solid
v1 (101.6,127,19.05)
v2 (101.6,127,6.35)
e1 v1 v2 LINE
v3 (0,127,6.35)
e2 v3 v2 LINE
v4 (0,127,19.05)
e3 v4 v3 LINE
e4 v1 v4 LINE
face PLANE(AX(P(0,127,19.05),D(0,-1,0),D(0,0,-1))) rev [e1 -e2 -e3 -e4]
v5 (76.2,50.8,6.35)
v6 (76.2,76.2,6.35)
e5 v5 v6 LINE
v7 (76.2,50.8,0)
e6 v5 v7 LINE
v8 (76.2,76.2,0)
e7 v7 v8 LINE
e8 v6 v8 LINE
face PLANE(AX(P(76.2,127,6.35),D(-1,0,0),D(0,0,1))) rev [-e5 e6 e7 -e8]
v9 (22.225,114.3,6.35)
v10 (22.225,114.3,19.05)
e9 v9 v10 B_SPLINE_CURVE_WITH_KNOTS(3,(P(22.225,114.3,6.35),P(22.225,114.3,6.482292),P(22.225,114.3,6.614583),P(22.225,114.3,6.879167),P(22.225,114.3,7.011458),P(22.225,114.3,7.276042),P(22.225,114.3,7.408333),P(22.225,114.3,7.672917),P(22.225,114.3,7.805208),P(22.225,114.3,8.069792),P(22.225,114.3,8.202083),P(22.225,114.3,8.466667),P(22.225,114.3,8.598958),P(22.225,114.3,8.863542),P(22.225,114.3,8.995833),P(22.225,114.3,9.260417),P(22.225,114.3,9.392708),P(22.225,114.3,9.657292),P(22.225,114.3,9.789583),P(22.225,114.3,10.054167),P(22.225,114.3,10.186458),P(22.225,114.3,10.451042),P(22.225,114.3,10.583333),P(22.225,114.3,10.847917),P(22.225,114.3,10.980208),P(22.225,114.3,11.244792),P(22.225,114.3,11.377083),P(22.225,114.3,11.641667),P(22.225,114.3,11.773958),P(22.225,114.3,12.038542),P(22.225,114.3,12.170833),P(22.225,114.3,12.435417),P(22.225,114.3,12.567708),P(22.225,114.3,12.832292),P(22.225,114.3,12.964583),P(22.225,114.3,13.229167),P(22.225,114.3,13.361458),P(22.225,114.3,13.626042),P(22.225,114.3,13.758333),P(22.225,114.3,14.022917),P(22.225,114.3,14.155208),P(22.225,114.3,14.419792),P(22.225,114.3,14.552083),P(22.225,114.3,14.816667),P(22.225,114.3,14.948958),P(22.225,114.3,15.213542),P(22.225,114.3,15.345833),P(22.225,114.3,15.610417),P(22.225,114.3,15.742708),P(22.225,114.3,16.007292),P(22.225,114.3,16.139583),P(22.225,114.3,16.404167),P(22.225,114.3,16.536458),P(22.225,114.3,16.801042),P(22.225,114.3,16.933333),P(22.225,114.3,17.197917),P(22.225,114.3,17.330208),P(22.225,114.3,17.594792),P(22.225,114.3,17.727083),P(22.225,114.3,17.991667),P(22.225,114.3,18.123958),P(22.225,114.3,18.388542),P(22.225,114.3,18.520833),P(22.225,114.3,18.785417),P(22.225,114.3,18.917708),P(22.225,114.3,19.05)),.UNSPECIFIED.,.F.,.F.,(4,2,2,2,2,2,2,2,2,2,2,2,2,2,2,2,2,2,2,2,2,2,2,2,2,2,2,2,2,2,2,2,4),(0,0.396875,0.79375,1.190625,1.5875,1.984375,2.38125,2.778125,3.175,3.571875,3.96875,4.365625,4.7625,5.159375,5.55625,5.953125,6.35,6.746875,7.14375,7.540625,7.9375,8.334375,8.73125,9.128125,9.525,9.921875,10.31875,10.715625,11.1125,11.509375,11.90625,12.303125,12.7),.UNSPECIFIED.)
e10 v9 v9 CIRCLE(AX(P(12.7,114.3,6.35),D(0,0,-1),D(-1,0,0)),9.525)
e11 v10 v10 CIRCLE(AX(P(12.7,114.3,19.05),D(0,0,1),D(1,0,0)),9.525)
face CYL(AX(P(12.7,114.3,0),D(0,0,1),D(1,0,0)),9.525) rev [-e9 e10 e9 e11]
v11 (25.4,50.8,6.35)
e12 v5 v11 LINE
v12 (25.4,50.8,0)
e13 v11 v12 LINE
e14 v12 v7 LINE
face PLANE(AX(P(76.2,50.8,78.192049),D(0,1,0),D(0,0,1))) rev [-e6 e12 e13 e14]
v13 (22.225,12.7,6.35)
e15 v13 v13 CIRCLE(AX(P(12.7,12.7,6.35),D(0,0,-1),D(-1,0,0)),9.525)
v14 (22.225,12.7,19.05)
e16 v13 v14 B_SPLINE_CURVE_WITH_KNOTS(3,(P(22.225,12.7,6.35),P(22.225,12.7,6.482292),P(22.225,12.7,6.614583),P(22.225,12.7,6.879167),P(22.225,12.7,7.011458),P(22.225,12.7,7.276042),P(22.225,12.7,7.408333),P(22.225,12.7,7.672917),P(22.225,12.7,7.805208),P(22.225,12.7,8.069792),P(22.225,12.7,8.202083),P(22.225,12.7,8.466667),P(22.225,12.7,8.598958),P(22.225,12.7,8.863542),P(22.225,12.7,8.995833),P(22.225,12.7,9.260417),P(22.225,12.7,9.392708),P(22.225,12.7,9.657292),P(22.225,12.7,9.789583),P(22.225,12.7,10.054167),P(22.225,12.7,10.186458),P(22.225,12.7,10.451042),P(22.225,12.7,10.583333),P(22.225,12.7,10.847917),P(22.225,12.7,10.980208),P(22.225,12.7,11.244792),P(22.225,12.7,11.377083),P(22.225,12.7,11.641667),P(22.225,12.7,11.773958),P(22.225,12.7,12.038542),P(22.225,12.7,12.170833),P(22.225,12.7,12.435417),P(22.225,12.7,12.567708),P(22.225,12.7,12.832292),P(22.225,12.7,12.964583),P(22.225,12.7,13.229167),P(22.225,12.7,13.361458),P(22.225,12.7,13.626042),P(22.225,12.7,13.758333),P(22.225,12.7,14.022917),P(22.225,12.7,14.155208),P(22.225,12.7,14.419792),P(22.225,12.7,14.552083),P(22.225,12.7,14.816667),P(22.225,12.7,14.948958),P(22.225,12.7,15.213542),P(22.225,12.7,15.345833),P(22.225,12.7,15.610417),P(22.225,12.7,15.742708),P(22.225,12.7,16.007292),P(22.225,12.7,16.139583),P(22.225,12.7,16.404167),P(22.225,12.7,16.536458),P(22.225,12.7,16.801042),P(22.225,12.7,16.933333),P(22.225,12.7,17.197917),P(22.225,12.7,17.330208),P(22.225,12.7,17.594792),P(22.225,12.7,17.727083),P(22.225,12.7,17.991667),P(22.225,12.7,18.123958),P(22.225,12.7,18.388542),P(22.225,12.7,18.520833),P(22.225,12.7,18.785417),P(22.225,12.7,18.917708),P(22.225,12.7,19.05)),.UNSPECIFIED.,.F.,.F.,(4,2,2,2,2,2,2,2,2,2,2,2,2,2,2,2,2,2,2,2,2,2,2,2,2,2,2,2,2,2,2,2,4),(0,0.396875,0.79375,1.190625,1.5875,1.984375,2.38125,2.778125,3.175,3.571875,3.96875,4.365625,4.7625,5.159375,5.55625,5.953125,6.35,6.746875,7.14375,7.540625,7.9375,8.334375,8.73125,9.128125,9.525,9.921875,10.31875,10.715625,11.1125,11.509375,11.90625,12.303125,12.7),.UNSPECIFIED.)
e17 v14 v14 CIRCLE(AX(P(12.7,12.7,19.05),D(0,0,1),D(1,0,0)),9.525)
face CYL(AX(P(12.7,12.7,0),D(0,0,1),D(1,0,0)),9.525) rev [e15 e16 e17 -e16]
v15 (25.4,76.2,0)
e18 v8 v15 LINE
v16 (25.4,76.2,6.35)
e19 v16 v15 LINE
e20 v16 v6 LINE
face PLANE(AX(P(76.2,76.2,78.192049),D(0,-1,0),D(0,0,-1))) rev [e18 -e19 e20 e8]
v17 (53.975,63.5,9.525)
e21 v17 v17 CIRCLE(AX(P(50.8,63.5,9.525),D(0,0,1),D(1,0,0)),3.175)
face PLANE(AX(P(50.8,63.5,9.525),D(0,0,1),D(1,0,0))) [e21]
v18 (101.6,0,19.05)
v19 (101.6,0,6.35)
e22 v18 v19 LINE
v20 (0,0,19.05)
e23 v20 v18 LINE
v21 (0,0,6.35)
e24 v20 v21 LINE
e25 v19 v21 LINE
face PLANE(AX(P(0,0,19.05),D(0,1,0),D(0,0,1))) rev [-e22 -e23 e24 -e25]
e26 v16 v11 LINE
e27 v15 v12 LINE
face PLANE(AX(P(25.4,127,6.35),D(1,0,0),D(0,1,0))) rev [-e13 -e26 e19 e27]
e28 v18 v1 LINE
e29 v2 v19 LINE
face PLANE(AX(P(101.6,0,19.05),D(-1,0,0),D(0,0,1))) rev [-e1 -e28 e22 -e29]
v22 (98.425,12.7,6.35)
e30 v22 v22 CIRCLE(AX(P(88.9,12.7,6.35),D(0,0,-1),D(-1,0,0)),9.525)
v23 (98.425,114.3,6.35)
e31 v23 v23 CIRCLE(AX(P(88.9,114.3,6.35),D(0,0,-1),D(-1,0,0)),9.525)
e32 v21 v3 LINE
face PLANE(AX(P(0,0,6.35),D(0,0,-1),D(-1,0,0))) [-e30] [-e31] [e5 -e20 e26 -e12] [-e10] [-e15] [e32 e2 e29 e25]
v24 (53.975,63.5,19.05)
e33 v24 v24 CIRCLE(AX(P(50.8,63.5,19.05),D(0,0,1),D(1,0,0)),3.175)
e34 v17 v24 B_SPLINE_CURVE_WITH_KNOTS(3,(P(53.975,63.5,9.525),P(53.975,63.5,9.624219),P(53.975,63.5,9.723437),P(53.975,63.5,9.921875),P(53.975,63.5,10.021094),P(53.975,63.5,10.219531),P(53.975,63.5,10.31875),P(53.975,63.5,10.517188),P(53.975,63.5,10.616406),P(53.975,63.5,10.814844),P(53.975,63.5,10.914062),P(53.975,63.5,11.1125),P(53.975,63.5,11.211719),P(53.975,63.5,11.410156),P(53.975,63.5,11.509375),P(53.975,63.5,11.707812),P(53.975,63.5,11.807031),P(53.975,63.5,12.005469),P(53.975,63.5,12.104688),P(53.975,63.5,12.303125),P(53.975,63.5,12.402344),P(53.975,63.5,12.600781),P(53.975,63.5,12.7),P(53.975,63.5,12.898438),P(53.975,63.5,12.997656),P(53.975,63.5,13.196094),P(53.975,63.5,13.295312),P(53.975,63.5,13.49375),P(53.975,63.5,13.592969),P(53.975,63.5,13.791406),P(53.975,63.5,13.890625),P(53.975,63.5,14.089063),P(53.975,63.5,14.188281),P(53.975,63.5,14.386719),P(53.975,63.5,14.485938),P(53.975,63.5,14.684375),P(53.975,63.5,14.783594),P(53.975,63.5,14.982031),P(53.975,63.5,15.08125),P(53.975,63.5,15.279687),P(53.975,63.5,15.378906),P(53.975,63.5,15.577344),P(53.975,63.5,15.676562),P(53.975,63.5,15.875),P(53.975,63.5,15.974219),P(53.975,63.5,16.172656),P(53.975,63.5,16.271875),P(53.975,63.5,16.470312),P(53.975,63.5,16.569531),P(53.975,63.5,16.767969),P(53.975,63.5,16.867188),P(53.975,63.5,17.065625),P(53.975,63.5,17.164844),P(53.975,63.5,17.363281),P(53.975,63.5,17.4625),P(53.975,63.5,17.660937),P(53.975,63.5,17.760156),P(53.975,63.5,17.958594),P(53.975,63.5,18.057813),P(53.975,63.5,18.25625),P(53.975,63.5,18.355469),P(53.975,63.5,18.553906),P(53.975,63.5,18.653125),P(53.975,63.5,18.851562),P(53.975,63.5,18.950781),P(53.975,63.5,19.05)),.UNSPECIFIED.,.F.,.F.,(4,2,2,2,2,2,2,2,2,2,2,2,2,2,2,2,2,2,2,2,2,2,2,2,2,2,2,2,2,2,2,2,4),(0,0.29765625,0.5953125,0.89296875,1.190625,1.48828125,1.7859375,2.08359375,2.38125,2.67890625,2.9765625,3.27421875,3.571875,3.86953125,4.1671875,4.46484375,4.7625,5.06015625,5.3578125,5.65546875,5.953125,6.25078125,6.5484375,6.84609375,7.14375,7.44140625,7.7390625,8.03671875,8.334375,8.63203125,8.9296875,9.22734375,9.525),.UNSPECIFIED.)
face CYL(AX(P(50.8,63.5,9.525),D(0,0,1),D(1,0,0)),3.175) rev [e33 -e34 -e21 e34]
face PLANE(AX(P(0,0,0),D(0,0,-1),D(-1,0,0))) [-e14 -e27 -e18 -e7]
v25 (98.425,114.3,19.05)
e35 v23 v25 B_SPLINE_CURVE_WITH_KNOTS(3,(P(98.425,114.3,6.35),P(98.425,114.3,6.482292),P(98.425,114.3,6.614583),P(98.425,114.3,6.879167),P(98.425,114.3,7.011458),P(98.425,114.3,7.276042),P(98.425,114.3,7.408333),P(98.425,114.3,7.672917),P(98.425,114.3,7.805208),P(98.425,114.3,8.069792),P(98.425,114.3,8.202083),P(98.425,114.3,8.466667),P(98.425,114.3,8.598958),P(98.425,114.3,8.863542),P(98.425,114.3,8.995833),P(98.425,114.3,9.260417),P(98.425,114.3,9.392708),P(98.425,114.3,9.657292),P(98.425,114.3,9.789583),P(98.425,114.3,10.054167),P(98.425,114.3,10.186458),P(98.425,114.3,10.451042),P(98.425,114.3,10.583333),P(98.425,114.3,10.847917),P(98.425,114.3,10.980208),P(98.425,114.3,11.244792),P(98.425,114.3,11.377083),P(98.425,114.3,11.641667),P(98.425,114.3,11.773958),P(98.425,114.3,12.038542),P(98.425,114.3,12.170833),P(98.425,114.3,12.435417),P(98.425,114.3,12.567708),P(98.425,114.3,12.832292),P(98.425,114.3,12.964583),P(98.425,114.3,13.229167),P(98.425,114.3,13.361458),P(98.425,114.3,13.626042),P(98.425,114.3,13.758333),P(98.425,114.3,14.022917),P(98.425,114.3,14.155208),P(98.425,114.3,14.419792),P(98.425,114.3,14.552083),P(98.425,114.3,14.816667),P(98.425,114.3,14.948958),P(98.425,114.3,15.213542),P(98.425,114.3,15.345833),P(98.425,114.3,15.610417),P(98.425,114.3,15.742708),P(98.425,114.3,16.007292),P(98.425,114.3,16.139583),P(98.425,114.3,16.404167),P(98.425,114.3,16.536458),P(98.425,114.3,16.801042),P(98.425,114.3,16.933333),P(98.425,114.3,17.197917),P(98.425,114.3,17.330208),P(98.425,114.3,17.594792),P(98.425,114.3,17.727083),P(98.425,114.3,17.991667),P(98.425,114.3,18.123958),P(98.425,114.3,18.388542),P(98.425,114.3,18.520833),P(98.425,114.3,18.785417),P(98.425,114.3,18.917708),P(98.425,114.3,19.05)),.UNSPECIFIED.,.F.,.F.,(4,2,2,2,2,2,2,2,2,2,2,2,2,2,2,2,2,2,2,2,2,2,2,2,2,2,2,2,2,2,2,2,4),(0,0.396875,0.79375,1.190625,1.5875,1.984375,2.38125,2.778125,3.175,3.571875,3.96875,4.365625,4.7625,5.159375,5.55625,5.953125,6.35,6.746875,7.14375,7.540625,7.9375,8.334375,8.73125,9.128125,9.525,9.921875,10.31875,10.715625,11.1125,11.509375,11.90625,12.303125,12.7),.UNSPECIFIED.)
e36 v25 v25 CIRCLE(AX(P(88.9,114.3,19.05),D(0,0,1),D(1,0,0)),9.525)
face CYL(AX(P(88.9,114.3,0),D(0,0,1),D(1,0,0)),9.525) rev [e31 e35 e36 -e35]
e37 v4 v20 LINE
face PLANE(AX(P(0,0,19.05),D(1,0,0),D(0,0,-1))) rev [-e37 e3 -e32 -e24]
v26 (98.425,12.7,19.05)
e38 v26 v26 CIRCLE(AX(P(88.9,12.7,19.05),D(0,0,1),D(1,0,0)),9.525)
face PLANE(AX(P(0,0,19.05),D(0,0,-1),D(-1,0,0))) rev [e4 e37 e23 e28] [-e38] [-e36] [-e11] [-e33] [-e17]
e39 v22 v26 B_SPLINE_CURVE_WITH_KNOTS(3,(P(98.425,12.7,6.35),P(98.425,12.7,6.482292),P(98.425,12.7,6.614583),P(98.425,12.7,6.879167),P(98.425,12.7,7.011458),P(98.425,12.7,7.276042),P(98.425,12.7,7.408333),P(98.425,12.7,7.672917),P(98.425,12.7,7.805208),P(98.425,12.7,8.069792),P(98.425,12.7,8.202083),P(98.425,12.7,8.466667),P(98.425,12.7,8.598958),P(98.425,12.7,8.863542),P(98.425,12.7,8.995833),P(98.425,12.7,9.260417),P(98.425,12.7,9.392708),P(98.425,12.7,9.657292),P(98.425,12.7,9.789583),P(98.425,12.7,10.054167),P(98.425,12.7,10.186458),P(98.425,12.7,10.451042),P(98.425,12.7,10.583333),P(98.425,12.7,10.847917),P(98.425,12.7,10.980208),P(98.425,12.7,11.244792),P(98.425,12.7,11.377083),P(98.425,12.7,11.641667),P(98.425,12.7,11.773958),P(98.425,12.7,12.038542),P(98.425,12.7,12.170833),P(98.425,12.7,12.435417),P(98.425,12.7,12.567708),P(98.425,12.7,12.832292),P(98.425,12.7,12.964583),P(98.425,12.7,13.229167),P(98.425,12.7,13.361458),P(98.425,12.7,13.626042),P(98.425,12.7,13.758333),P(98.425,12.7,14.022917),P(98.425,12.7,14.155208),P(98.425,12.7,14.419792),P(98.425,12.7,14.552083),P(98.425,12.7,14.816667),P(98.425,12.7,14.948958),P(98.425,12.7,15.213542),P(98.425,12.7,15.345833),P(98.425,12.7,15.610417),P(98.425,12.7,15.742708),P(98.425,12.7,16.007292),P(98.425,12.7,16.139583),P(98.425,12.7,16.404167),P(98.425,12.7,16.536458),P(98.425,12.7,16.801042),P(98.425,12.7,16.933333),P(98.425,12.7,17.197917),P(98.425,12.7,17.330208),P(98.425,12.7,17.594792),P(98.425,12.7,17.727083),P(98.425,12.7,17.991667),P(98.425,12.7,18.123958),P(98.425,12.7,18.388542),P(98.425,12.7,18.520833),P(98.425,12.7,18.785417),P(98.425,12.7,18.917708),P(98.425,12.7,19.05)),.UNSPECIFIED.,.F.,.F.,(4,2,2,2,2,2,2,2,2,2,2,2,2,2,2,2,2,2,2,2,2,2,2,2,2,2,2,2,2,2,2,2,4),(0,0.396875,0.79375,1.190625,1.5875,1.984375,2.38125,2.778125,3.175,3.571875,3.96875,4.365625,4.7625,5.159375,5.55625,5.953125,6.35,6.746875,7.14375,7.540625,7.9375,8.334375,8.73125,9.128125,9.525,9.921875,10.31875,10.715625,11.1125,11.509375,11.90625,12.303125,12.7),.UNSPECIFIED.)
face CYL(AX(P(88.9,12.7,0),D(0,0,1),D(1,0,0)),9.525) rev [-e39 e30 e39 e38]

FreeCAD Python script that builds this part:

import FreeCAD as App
import Part
import Sketcher

V = App.Vector
Q = App.Units.Quantity


def add_polygon(sketch, points):
    """Adds a closed chain of lines whose ends are joined by coincident constraints."""
    first, n = sketch.GeometryCount, len(points)
    for a, b in zip(points, points[1:] + points[:1]):
        sketch.addGeometry(Part.LineSegment(App.Vector(*a, 0), App.Vector(*b, 0)), False)
    for i in range(n):
        sketch.addConstraint(Sketcher.Constraint("Coincident", first + i, 2, first + (i + 1) % n, 1))

doc = App.newDocument("Part")
body = doc.addObject("PartDesign::Body", "Body")

sketch1 = body.newObject("Sketcher::SketchObject", "Sketch")
sketch1.AttachmentSupport = (doc.getObject("XY_Plane"), [""])
sketch1.MapMode = "FlatFace"
add_polygon(sketch1, [(0, 127), (0, 0), (102, 0), (102, 127)])
sketch1.addConstraint([
    Sketcher.Constraint("Vertical", 0),
    Sketcher.Constraint("Horizontal", 1),
    Sketcher.Constraint("Vertical", 2),
    Sketcher.Constraint("Horizontal", 3),
    Sketcher.Constraint("Coincident", 0, 2, -1, 1),
    Sketcher.Constraint("DistanceX", 1, 1, 1, 2, Q("4 in")),
    Sketcher.Constraint("DistanceY", 0, 2, 0, 1, Q("5 in")),
])
pad1 = body.newObject("PartDesign::Pad", "Pad")
pad1.Profile = sketch1
pad1.Length = Q("0.75 in")

sketch2 = body.newObject("Sketcher::SketchObject", "Sketch001")
sketch2.AttachmentSupport = (doc.getObject("XY_Plane"), [""])
sketch2.MapMode = "FlatFace"
add_polygon(sketch2, [(102, 127), (102, 0), (76, 0), (76, 127)])
add_polygon(sketch2, [(25, 127), (25, 0), (0, 0), (0, 127)])
sketch2.addConstraint([
    Sketcher.Constraint("Vertical", 0),
    Sketcher.Constraint("Horizontal", 1),
    Sketcher.Constraint("Vertical", 2),
    Sketcher.Constraint("Horizontal", 3),
    Sketcher.Constraint("Vertical", 4),
    Sketcher.Constraint("Horizontal", 5),
    Sketcher.Constraint("Vertical", 6),
    Sketcher.Constraint("Horizontal", 7),
    Sketcher.Constraint("Coincident", 5, 2, -1, 1),
    Sketcher.Constraint("PointOnObject", 0, 2, -1),
    Sketcher.Constraint("Horizontal", 3, 2, 6, 2),
    Sketcher.Constraint("Equal", 3, 5),
    Sketcher.Constraint("DistanceX", 1, 2, 1, 1, Q("1 in")),
    Sketcher.Constraint("DistanceY", 0, 2, 0, 1, Q("5 in")),
    Sketcher.Constraint("DistanceX", -1, 1, 0, 2, Q("4 in")),
])
pocket1 = body.newObject("PartDesign::Pocket", "Pocket")
pocket1.Profile = sketch2
pocket1.Length = Q("0.25 in")
pocket1.Reversed = True

sketch3 = body.newObject("Sketcher::SketchObject", "Sketch002")
sketch3.AttachmentSupport = (doc.getObject("XY_Plane"), [""])
sketch3.MapMode = "FlatFace"
sketch3.AttachmentOffset = App.Placement(V(0, 0, 0.75 * 25.4), App.Rotation())
sketch3.addGeometry(Part.Circle(V(13, 114, 0), V(0, 0, 1), 6), False)
sketch3.addConstraint([
    Sketcher.Constraint("Diameter", 0, Q("0.5 in")),
    Sketcher.Constraint("DistanceX", -1, 1, 0, 3, Q("0.5 in")),
    Sketcher.Constraint("DistanceY", -1, 1, 0, 3, Q("4.5 in")),
])
pocket2 = body.newObject("PartDesign::Pocket", "Pocket001")
pocket2.Profile = sketch3
pocket2.Type = "UpToFirst"

sketch4 = body.newObject("Sketcher::SketchObject", "Sketch003")
sketch4.AttachmentSupport = (doc.getObject("XY_Plane"), [""])
sketch4.MapMode = "FlatFace"
sketch4.AttachmentOffset = App.Placement(V(0, 0, 0.75 * 25.4), App.Rotation())
sketch4.addGeometry(Part.Circle(V(13, 13, 0), V(0, 0, 1), 6), False)
sketch4.addConstraint([
    Sketcher.Constraint("Diameter", 0, Q("0.5 in")),
    Sketcher.Constraint("DistanceX", -1, 1, 0, 3, Q("0.5 in")),
    Sketcher.Constraint("DistanceY", -1, 1, 0, 3, Q("0.5 in")),
])
pocket3 = body.newObject("PartDesign::Pocket", "Pocket002")
pocket3.Profile = sketch4
pocket3.Type = "UpToFirst"

sketch5 = body.newObject("Sketcher::SketchObject", "Sketch004")
sketch5.AttachmentSupport = (doc.getObject("XY_Plane"), [""])
sketch5.MapMode = "FlatFace"
sketch5.AttachmentOffset = App.Placement(V(0, 0, 0.75 * 25.4), App.Rotation())
sketch5.addGeometry(Part.Circle(V(89, 13, 0), V(0, 0, 1), 6), False)
sketch5.addConstraint([
    Sketcher.Constraint("Diameter", 0, Q("0.5 in")),
    Sketcher.Constraint("DistanceX", -1, 1, 0, 3, Q("3.5 in")),
    Sketcher.Constraint("DistanceY", -1, 1, 0, 3, Q("0.5 in")),
])
pocket4 = body.newObject("PartDesign::Pocket", "Pocket003")
pocket4.Profile = sketch5
pocket4.Type = "UpToFirst"

sketch6 = body.newObject("Sketcher::SketchObject", "Sketch005")
sketch6.AttachmentSupport = (doc.getObject("XY_Plane"), [""])
sketch6.MapMode = "FlatFace"
sketch6.AttachmentOffset = App.Placement(V(0, 0, 0.75 * 25.4), App.Rotation())
sketch6.addGeometry(Part.Circle(V(89, 114, 0), V(0, 0, 1), 6), False)
sketch6.addConstraint([
    Sketcher.Constraint("Diameter", 0, Q("0.5 in")),
    Sketcher.Constraint("DistanceX", -1, 1, 0, 3, Q("3.5 in")),
    Sketcher.Constraint("DistanceY", -1, 1, 0, 3, Q("4.5 in")),
])
pocket5 = body.newObject("PartDesign::Pocket", "Pocket004")
pocket5.Profile = sketch6
pocket5.Type = "UpToFirst"

sketch7 = body.newObject("Sketcher::SketchObject", "Sketch006")
sketch7.AttachmentSupport = (doc.getObject("XY_Plane"), [""])
sketch7.MapMode = "FlatFace"
add_polygon(sketch7, [(76, 51), (76, 0), (25, 0), (25, 51)])
add_polygon(sketch7, [(76, 127), (76, 76), (25, 76), (25, 127)])
sketch7.addConstraint([
    Sketcher.Constraint("Vertical", 0),
    Sketcher.Constraint("Horizontal", 1),
    Sketcher.Constraint("Vertical", 2),
    Sketcher.Constraint("Horizontal", 3),
    Sketcher.Constraint("Vertical", 4),
    Sketcher.Constraint("Horizontal", 5),
    Sketcher.Constraint("Vertical", 6),
    Sketcher.Constraint("Horizontal", 7),
    Sketcher.Constraint("PointOnObject", 0, 2, -1),
    Sketcher.Constraint("Vertical", 3, 2, 4, 2),
    Sketcher.Constraint("Vertical", 2, 2, 5, 2),
    Sketcher.Constraint("Equal", 7, 0),
    Sketcher.Constraint("Equal", 2, 4),
    Sketcher.Constraint("DistanceX", 1, 2, 1, 1, Q("2 in")),
    Sketcher.Constraint("DistanceX", -1, 1, 0, 2, Q("3 in")),
    Sketcher.Constraint("DistanceY", -1, 1, 4, 2, Q("3 in")),
])
pocket6 = body.newObject("PartDesign::Pocket", "Pocket005")
pocket6.Profile = sketch7
pocket6.Length = Q("0.25 in")
pocket6.Reversed = True

sketch8 = body.newObject("Sketcher::SketchObject", "Sketch007")
sketch8.AttachmentSupport = (doc.getObject("XY_Plane"), [""])
sketch8.MapMode = "FlatFace"
sketch8.AttachmentOffset = App.Placement(V(0, 0, 0.75 * 25.4), App.Rotation())
sketch8.addGeometry(Part.Circle(V(50.8, 63.5, 0), V(0, 0, 1), 3.2), False)
sketch8.addConstraint([
    Sketcher.Constraint("Diameter", 0, Q("0.25 in")),
    Sketcher.Constraint("DistanceX", -1, 1, 0, 3, Q("2 in")),
    Sketcher.Constraint("DistanceY", -1, 1, 0, 3, Q("2.5 in")),
])
pocket7 = body.newObject("PartDesign::Pocket", "Pocket006")
pocket7.Profile = sketch8
pocket7.Length = Q("0.375 in")

sketch9 = body.newObject("Sketcher::SketchObject", "Sketch008")
sketch9.AttachmentSupport = (doc.getObject("XY_Plane"), [""])
sketch9.MapMode = "FlatFace"
sketch9.AttachmentOffset = App.Placement(V(0, 0, 0.75 * 25.4), App.Rotation())
sketch9.addGeometry([
    Part.Circle(V(13, 114, 0), V(0, 0, 1), 10),
    Part.Circle(V(89, 114, 0), V(0, 0, 1), 10),
    Part.Circle(V(13, 13, 0), V(0, 0, 1), 10),
    Part.Circle(V(89, 13, 0), V(0, 0, 1), 10),
    Part.Circle(V(89, -90, 0), V(0, 0, 1), 10),
], False)
sketch9.addConstraint([
    Sketcher.Constraint("Equal", 0, 1),
    Sketcher.Constraint("Equal", 1, 2),
    Sketcher.Constraint("Equal", 2, 3),
    Sketcher.Constraint("Equal", 3, 4),
    Sketcher.Constraint("Horizontal", 0, 3, 1, 3),
    Sketcher.Constraint("Horizontal", 2, 3, 3, 3),
    Sketcher.Constraint("Vertical", 0, 3, 2, 3),
    Sketcher.Constraint("Vertical", 1, 3, 3, 3),
    Sketcher.Constraint("Diameter", 0, Q("0.75 in")),
    Sketcher.Constraint("DistanceX", 0, 3, 1, 3, Q("3 in")),
    Sketcher.Constraint("DistanceY", 2, 3, 0, 3, Q("4 in")),
    Sketcher.Constraint("DistanceX", -1, 1, 0, 3, Q("0.5 in")),
    Sketcher.Constraint("DistanceY", -1, 1, 0, 3, Q("4.5 in")),
    Sketcher.Constraint("DistanceX", -1, 1, 4, 3, 88.632473),
    Sketcher.Constraint("DistanceY", 4, 3, -1, 1, 89.675466),
])
pocket8 = body.newObject("PartDesign::Pocket", "Pocket007")
pocket8.Profile = sketch9
pocket8.Type = "ThroughAll"

doc.recompute()
